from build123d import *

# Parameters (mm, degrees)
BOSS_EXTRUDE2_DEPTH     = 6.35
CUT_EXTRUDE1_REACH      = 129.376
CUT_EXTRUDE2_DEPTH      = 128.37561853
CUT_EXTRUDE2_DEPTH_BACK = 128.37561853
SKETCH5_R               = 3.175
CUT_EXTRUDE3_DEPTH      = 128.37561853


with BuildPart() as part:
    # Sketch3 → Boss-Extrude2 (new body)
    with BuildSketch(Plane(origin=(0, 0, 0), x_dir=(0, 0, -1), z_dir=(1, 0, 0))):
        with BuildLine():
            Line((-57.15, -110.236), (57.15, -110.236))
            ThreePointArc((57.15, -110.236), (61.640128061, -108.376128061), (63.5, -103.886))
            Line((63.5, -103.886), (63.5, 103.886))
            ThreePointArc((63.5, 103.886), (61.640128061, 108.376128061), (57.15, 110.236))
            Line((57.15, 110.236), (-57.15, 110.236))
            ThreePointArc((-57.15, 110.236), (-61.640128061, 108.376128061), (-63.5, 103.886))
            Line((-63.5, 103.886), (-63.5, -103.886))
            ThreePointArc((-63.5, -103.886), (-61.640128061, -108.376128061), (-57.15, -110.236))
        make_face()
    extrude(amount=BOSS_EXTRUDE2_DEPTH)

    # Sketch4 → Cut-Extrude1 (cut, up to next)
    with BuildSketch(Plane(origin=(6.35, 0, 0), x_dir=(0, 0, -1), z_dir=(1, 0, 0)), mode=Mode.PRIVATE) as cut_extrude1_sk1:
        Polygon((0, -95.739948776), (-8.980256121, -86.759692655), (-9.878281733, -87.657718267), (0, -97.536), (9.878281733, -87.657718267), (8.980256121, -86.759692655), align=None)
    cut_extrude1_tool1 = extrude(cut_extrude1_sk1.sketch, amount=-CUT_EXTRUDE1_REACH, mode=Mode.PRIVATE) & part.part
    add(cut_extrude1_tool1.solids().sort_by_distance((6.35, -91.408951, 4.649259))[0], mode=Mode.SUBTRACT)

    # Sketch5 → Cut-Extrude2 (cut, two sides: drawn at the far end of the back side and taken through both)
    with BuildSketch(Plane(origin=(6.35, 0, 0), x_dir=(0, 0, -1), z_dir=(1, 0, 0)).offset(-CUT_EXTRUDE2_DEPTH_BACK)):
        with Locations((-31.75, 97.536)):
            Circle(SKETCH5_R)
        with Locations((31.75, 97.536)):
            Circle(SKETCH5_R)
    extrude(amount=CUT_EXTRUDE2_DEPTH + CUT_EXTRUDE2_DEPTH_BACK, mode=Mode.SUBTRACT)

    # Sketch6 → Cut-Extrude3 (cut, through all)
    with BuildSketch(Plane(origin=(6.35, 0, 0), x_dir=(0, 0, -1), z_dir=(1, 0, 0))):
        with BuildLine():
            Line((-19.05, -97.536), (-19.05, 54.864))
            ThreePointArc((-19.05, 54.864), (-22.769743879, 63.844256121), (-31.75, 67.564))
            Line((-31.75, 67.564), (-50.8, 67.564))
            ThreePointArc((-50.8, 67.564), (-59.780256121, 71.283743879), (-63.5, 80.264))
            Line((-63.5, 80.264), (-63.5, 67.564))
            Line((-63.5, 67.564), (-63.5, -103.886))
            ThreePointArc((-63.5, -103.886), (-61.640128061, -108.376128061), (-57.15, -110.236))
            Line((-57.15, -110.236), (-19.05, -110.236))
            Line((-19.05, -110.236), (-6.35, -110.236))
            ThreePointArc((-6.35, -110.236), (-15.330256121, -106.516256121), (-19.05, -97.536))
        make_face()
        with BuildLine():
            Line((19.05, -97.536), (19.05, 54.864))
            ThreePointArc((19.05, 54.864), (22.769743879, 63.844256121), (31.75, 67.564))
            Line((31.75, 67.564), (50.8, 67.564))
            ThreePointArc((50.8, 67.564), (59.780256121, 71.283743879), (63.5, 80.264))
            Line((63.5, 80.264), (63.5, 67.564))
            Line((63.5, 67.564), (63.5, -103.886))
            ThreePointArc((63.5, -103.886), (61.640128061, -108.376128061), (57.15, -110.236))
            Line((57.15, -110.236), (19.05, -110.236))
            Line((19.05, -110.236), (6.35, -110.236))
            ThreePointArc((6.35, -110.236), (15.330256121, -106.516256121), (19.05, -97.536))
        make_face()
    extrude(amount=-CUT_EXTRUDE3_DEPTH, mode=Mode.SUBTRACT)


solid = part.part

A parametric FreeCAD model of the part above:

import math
import FreeCAD as App
import Part
import Sketcher
from FreeCAD import Vector
Q = App.Units.Quantity


def add_polygon(sketch, points):
    """Adds a closed chain of lines whose ends are joined by coincident constraints."""
    first, n = sketch.GeometryCount, len(points)
    for a, b in zip(points, points[1:] + points[:1]):
        sketch.addGeometry(Part.LineSegment(App.Vector(*a, 0), App.Vector(*b, 0)), False)
    for i in range(n):
        sketch.addConstraint(Sketcher.Constraint("Coincident", first + i, 2, first + (i + 1) % n, 1))

doc = App.newDocument("Part")
body = doc.addObject("PartDesign::Body", "Body")

sketch1 = body.newObject("Sketcher::SketchObject", "Sketch")
sketch1.AttachmentSupport = (doc.getObject("YZ_Plane"), [""])
sketch1.MapMode = "FlatFace"
sketch1.addGeometry([
    Part.LineSegment(Vector(-110.236, 57.15, 0), Vector(-110.236, -57.15, 0)),
    Part.ArcOfCircle(Part.Circle(Vector(-103.886, -57.15, 0), Vector(0, 0, 1), 6.35), math.radians(180), math.radians(270)),
    Part.LineSegment(Vector(-103.886, -63.5, 0), Vector(103.886, -63.5, 0)),
    Part.ArcOfCircle(Part.Circle(Vector(103.886, -57.15, 0), Vector(0, 0, 1), 6.35), math.radians(-90), math.radians(0)),
    Part.LineSegment(Vector(110.236, -57.15, 0), Vector(110.236, 57.15, 0)),
    Part.ArcOfCircle(Part.Circle(Vector(103.886, 57.15, 0), Vector(0, 0, 1), 6.35), math.radians(0), math.radians(90)),
    Part.LineSegment(Vector(103.886, 63.5, 0), Vector(-103.886, 63.5, 0)),
    Part.ArcOfCircle(Part.Circle(Vector(-103.886, 57.15, 0), Vector(0, 0, 1), 6.35), math.radians(90), math.radians(180)),
], False)
sketch1.addConstraint([
    Sketcher.Constraint("Tangent", 0, 2, 1, 1),
    Sketcher.Constraint("Tangent", 1, 2, 2, 1),
    Sketcher.Constraint("Tangent", 2, 2, 3, 1),
    Sketcher.Constraint("Tangent", 3, 2, 4, 1),
    Sketcher.Constraint("Tangent", 4, 2, 5, 1),
    Sketcher.Constraint("Tangent", 5, 2, 6, 1),
    Sketcher.Constraint("Tangent", 6, 2, 7, 1),
    Sketcher.Constraint("Tangent", 7, 2, 0, 1),
    Sketcher.Constraint("Vertical", 0),
    Sketcher.Constraint("Horizontal", 2),
    Sketcher.Constraint("Vertical", 4),
    Sketcher.Constraint("Horizontal", 6),
    Sketcher.Constraint("Equal", 1, 3),
    Sketcher.Constraint("Equal", 3, 5),
    Sketcher.Constraint("Equal", 5, 7),
    Sketcher.Constraint("Symmetric", 1, 3, 5, 3, -1, 1),
    Sketcher.Constraint("Radius", 1, Q("0.25 in")),
    Sketcher.Constraint("DistanceY", 0, 2, 0, 1, Q("4.5 in")),
    Sketcher.Constraint("DistanceX", 2, 1, 2, 2, Q("8.18 in")),
])
pad1 = body.newObject("PartDesign::Pad", "Pad")
pad1.Profile = sketch1
pad1.Length = Q("0.25 in")

sketch2 = body.newObject("Sketcher::SketchObject", "Sketch001")
sketch2.AttachmentSupport = (doc.getObject("YZ_Plane"), [""])
sketch2.MapMode = "FlatFace"
sketch2.AttachmentOffset = App.Placement(Vector(0, 0, 0.25 * 25.4), App.Rotation())
add_polygon(sketch2, [(-95.739949, 0), (-86.759693, 8.980256), (-87.657718, 9.878282), (-97.536, 0), (-87.657718, -9.878282), (-86.759693, -8.980256)])
sketch2.addConstraint([
    Sketcher.Constraint("Symmetric", 1, 2, 3, 2, -1),
    Sketcher.Constraint("Symmetric", 0, 2, 4, 2, -1),
    Sketcher.Constraint("PointOnObject", 2, 2, -1),
    Sketcher.Constraint("PointOnObject", 5, 2, -1),
    Sketcher.Constraint("Perpendicular", 0, 1),
    Sketcher.Constraint("Perpendicular", 1, 2),
    Sketcher.Constraint("Perpendicular", 2, 3),
    Sketcher.Constraint("Distance", 0, Q("0.5 in")),
    Sketcher.Constraint("Distance", 1, Q("0.05 in")),
    Sketcher.Constraint("DistanceX", 2, 2, -1, 1, Q("3.84 in")),
])
pocket1 = body.newObject("PartDesign::Pocket", "Pocket")
pocket1.Profile = sketch2
pocket1.Type = "UpToFirst"

sketch3 = body.newObject("Sketcher::SketchObject", "Sketch002")
sketch3.AttachmentSupport = (doc.getObject("YZ_Plane"), [""])
sketch3.MapMode = "FlatFace"
sketch3.AttachmentOffset = App.Placement(Vector(0, 0, 0.25 * 25.4), App.Rotation())
sketch3.addGeometry([
    Part.Circle(Vector(97.536, 31.75, 0), Vector(0, 0, 1), 3.175),
    Part.Circle(Vector(97.536, -31.75, 0), Vector(0, 0, 1), 3.175),
], False)
sketch3.addConstraint([
    Sketcher.Constraint("Equal", 0, 1),
    Sketcher.Constraint("Symmetric", 0, 3, 1, 3, -1),
    Sketcher.Constraint("Diameter", 0, Q("0.25 in")),
    Sketcher.Constraint("DistanceY", 1, 3, 0, 3, Q("2.5 in")),
    Sketcher.Constraint("DistanceX", -1, 1, 0, 3, Q("3.84 in")),
])
pocket2 = body.newObject("PartDesign::Pocket", "Pocket001")
pocket2.Profile = sketch3
pocket2.Type = "ThroughAll"
pocket2.Midplane = True

sketch4 = body.newObject("Sketcher::SketchObject", "Sketch003")
sketch4.AttachmentSupport = (doc.getObject("YZ_Plane"), [""])
sketch4.MapMode = "FlatFace"
sketch4.AttachmentOffset = App.Placement(Vector(0, 0, 0.25 * 25.4), App.Rotation())
sketch4.addGeometry([
    Part.LineSegment(Vector(-97.536, 19.05, 0), Vector(54.864, 19.05, 0)),
    Part.ArcOfCircle(Part.Circle(Vector(54.864, 31.75, 0), Vector(0, 0, 1), 12.7), math.radians(-90), math.radians(0)),
    Part.LineSegment(Vector(67.564, 31.75, 0), Vector(67.564, 50.8, 0)),
    Part.ArcOfCircle(Part.Circle(Vector(80.264, 50.8, 0), Vector(0, 0, 1), 12.7), math.radians(90), math.radians(180)),
    Part.LineSegment(Vector(80.264, 63.5, 0), Vector(-103.886, 63.5, 0)),
    Part.ArcOfCircle(Part.Circle(Vector(-103.886, 57.15, 0), Vector(0, 0, 1), 6.35), math.radians(90), math.radians(180)),
    Part.LineSegment(Vector(-110.236, 57.15, 0), Vector(-110.236, 6.35, 0)),
    Part.ArcOfCircle(Part.Circle(Vector(-97.536, 6.35, 0), Vector(0, 0, 1), 12.7), math.radians(90), math.radians(180)),
    Part.LineSegment(Vector(54.864, -19.05, 0), Vector(-97.536, -19.05, 0)),
    Part.ArcOfCircle(Part.Circle(Vector(-97.536, -6.35, 0), Vector(0, 0, 1), 12.7), math.radians(180), math.radians(270)),
    Part.LineSegment(Vector(-110.236, -6.35, 0), Vector(-110.236, -57.15, 0)),
    Part.ArcOfCircle(Part.Circle(Vector(-103.886, -57.15, 0), Vector(0, 0, 1), 6.35), math.radians(180), math.radians(270)),
    Part.LineSegment(Vector(-103.886, -63.5, 0), Vector(80.264, -63.5, 0)),
    Part.ArcOfCircle(Part.Circle(Vector(80.264, -50.8, 0), Vector(0, 0, 1), 12.7), math.radians(180), math.radians(270)),
    Part.LineSegment(Vector(67.564, -50.8, 0), Vector(67.564, -31.75, 0)),
    Part.ArcOfCircle(Part.Circle(Vector(54.864, -31.75, 0), Vector(0, 0, 1), 12.7), math.radians(0), math.radians(90)),
], False)
sketch4.addConstraint([
    Sketcher.Constraint("Tangent", 0, 2, 1, 1),
    Sketcher.Constraint("Tangent", 1, 2, 2, 1),
    Sketcher.Constraint("Tangent", 2, 2, 3, 2),
    Sketcher.Constraint("Tangent", 3, 1, 4, 1),
    Sketcher.Constraint("Tangent", 4, 2, 5, 1),
    Sketcher.Constraint("Tangent", 5, 2, 6, 1),
    Sketcher.Constraint("Tangent", 6, 2, 7, 2),
    Sketcher.Constraint("Tangent", 7, 1, 0, 1),
    Sketcher.Constraint("Tangent", 8, 2, 9, 2),
    Sketcher.Constraint("Tangent", 9, 1, 10, 1),
    Sketcher.Constraint("Tangent", 10, 2, 11, 1),
    Sketcher.Constraint("Tangent", 11, 2, 12, 1),
    Sketcher.Constraint("Tangent", 12, 2, 13, 2),
    Sketcher.Constraint("Tangent", 13, 1, 14, 1),
    Sketcher.Constraint("Tangent", 14, 2, 15, 1),
    Sketcher.Constraint("Tangent", 15, 2, 8, 1),
    Sketcher.Constraint("Horizontal", 0),
    Sketcher.Constraint("Vertical", 2),
    Sketcher.Constraint("Horizontal", 4),
    Sketcher.Constraint("Vertical", 6),
    Sketcher.Constraint("Horizontal", 8),
    Sketcher.Constraint("Vertical", 10),
    Sketcher.Constraint("Horizontal", 12),
    Sketcher.Constraint("Vertical", 14),
    Sketcher.Constraint("Equal", 1, 3),
    Sketcher.Constraint("Equal", 3, 7),
    Sketcher.Constraint("Equal", 7, 9),
    Sketcher.Constraint("Equal", 5, 11),
    Sketcher.Constraint("Equal", 9, 13),
    Sketcher.Constraint("Equal", 13, 15),
    Sketcher.Constraint("Symmetric", 7, 3, 9, 3, -1),
    Sketcher.Constraint("Symmetric", 3, 3, 13, 3, -1),
    Sketcher.Constraint("Radius", 1, Q("0.5 in")),
    Sketcher.Constraint("DistanceX", 0, 1, 0, 2, Q("6 in")),
    Sketcher.Constraint("DistanceY", 6, 2, 6, 1, Q("2 in")),
    Sketcher.Constraint("Radius", 5, Q("0.25 in")),
    Sketcher.Constraint("DistanceY", -1, 1, 3, 3, Q("2 in")),
    Sketcher.Constraint("DistanceX", -1, 1, 1, 3, Q("2.16 in")),
])
pocket3 = body.newObject("PartDesign::Pocket", "Pocket002")
pocket3.Profile = sketch4
pocket3.Type = "ThroughAll"

doc.recompute()
